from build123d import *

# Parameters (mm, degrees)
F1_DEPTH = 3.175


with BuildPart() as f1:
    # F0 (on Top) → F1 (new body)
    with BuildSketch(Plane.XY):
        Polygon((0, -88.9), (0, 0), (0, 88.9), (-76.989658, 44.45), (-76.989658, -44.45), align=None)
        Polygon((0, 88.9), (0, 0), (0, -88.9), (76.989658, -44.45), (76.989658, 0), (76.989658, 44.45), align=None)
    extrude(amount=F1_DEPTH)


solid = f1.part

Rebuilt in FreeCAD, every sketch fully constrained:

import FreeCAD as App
import Part
import Sketcher

V = App.Vector
Q = App.Units.Quantity


def add_polygon(sketch, points):
    """Adds a closed chain of lines whose ends are joined by coincident constraints."""
    first, n = sketch.GeometryCount, len(points)
    for a, b in zip(points, points[1:] + points[:1]):
        sketch.addGeometry(Part.LineSegment(App.Vector(*a, 0), App.Vector(*b, 0)), False)
    for i in range(n):
        sketch.addConstraint(Sketcher.Constraint("Coincident", first + i, 2, first + (i + 1) % n, 1))

doc = App.newDocument("Part")
params = doc.addObject("Spreadsheet::Sheet", "Params")
for row, (alias, value) in enumerate([
    ("sketch1_height", "3.5 in"),
    ("pad1_length", "0.125 in"),
], start=1):
    params.set(f"A{row}", alias)
    params.set(f"B{row}", "=" + value)
    params.setAlias(f"B{row}", alias)

body = doc.addObject("PartDesign::Body", "Body")

# Sketch on XY plane
sketch1 = body.newObject("Sketcher::SketchObject", "Sketch")
sketch1.AttachmentSupport = (doc.getObject("XY_Plane"), [""])
sketch1.MapMode = "FlatFace"
add_polygon(sketch1, [(0, 88.9), (-76.989658, 44.45), (-76.989658, -44.45), (0, -88.9), (76.989658, -44.45), (76.989658, 44.45)])  # lines 0-5
sketch1.addConstraint(Sketcher.Constraint("Vertical", 1))
sketch1.addConstraint(Sketcher.Constraint("Vertical", 4))
sketch1.addConstraint(Sketcher.Constraint("Symmetric", 0, 2, 3, 2, -1, 1))
sketch1.addConstraint(Sketcher.Constraint("Symmetric", 2, 2, 5, 2, -1, 1))
sketch1.addConstraint(Sketcher.Constraint("PointOnObject", 2, 2, -2))
sketch1.addConstraint(Sketcher.Constraint("Parallel", 2, 5))
sketch1.addConstraint(Sketcher.Constraint("Horizontal", 1, 2, 3, 2))
sketch1.addConstraint(Sketcher.Constraint("DistanceY", 1, 2, 1, 1, Q("3.5 in")))
sketch1.addConstraint(Sketcher.Constraint("Angle", 0, Q("-150 deg")))
sketch1.addConstraint(Sketcher.Constraint("DistanceY", 2, 2, 5, 2, Q("7 in")))
sketch1.setExpression("Constraints[13]", "Params.sketch1_height")
pad1 = body.newObject("PartDesign::Pad", "Pad")
pad1.Profile = sketch1
pad1.setExpression("Length", "Params.pad1_length")

doc.recompute()
